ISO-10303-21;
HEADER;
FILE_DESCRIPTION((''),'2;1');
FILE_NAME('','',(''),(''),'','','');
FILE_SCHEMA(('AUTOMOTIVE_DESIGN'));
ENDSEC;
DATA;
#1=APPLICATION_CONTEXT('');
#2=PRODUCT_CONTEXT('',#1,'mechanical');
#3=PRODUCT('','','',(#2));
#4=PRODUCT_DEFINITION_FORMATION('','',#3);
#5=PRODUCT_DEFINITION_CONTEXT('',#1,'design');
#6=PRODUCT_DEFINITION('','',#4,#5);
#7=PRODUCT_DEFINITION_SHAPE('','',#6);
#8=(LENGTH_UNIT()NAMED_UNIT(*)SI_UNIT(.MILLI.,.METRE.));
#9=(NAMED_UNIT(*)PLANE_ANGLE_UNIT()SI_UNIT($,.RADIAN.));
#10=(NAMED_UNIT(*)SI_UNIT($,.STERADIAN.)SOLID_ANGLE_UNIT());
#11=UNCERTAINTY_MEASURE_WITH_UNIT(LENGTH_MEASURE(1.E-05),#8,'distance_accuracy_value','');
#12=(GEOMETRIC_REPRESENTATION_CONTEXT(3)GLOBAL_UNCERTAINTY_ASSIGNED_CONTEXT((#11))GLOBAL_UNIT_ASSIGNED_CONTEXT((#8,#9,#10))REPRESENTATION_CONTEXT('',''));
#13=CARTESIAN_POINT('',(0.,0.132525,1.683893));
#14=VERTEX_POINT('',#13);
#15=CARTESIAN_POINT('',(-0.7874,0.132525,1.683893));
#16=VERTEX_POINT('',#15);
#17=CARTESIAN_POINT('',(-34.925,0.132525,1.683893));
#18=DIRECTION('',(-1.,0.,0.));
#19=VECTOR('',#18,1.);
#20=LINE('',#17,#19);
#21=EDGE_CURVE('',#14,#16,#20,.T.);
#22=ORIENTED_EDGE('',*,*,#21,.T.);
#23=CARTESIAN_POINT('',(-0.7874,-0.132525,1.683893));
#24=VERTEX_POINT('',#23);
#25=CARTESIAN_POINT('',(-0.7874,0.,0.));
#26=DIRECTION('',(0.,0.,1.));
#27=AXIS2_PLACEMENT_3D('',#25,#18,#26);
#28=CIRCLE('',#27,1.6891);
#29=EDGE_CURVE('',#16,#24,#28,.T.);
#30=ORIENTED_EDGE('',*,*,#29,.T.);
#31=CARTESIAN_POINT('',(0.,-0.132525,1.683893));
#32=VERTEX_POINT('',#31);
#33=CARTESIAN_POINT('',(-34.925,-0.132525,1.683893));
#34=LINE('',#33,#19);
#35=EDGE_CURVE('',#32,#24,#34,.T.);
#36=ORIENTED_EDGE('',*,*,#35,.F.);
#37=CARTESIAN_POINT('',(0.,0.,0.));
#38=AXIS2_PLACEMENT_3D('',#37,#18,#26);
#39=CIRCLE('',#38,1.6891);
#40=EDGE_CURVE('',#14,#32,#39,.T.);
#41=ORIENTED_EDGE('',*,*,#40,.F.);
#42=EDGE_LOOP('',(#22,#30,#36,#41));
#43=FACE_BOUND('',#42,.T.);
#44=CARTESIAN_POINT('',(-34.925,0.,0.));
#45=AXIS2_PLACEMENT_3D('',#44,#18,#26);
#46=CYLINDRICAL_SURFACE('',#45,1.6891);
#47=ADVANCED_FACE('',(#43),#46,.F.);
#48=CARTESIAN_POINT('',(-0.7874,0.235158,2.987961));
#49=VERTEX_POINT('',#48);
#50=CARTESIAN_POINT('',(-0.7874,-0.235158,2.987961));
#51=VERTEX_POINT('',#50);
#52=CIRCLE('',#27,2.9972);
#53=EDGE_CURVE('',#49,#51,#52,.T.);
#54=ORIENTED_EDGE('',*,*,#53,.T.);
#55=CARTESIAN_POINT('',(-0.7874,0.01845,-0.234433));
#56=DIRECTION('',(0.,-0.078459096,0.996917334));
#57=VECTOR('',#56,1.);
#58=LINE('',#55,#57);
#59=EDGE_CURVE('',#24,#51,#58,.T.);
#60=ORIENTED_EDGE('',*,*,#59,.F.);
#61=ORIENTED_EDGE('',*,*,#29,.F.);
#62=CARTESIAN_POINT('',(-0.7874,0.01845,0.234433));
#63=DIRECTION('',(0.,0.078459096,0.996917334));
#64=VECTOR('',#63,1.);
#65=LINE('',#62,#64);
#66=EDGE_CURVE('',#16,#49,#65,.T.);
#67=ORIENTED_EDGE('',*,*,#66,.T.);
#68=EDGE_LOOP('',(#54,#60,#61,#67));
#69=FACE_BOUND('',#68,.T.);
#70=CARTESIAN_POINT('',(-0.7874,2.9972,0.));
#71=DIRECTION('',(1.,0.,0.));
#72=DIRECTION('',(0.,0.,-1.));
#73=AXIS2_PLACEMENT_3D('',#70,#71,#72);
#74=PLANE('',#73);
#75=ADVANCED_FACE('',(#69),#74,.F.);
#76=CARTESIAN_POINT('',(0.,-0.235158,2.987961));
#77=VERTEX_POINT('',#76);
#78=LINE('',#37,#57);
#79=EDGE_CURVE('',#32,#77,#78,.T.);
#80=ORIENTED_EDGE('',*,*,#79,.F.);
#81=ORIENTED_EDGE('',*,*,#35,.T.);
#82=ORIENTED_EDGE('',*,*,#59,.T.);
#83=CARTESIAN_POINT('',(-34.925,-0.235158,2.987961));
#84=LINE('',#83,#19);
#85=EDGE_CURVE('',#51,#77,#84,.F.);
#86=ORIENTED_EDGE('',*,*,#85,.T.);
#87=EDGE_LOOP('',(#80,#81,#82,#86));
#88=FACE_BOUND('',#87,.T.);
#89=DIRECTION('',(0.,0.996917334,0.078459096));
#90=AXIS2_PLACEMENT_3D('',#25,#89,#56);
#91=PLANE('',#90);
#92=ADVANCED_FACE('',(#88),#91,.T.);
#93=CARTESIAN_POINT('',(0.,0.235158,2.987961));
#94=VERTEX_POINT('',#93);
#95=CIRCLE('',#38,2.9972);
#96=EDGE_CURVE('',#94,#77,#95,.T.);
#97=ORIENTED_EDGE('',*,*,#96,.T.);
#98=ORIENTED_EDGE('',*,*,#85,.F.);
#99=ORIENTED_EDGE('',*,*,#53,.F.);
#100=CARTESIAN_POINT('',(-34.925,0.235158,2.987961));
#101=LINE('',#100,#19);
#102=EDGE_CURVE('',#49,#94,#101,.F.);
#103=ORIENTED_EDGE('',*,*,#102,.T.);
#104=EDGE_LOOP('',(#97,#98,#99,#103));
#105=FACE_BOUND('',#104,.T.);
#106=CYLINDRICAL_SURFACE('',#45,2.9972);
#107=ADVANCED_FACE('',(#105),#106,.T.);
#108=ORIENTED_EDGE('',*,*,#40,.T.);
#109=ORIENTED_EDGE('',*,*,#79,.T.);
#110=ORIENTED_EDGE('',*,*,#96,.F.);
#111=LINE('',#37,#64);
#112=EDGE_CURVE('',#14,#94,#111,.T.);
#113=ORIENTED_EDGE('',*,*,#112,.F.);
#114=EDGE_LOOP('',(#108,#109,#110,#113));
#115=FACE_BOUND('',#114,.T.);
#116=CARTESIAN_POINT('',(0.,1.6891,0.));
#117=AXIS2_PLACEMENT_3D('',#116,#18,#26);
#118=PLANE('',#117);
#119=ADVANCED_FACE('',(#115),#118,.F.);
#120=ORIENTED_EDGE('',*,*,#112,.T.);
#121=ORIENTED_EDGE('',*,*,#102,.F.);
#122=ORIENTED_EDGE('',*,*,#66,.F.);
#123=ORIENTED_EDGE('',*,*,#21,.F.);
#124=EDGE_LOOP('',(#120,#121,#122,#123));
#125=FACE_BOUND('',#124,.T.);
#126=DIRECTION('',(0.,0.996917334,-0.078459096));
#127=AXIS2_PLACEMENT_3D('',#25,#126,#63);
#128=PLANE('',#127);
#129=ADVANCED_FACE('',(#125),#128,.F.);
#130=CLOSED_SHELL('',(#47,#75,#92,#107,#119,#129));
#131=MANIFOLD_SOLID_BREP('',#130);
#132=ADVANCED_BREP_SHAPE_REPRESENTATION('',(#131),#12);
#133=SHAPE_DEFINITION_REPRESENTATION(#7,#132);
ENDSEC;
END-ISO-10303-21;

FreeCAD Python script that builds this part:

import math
import FreeCAD as App
import Part
import Sketcher

V = App.Vector
Q = App.Units.Quantity

doc = App.newDocument("Part")
params = doc.addObject("Spreadsheet::Sheet", "Params")
for row, (alias, value) in enumerate([
    ("sketch1_width", "0.031 in"),
    ("revolution_angle", "360 deg"),
], start=1):
    params.set(f"A{row}", alias)
    params.set(f"B{row}", "=" + value)
    params.setAlias(f"B{row}", alias)

body = doc.addObject("PartDesign::Body", "Body")

sketch1 = body.newObject("Sketcher::SketchObject", "Sketch")
sketch1.AttachmentSupport = (doc.getObject("XY_Plane"), [""])
sketch1.MapMode = "FlatFace"
sketch1.addGeometry(Part.LineSegment(V(-0.8, 3, 0), V(-0.8, 1.7, 0)), False)
sketch1.addGeometry(Part.LineSegment(V(-0.8, 1.7, 0), V(0, 1.7, 0)), False)
sketch1.addGeometry(Part.LineSegment(V(0, 1.7, 0), V(0, 3, 0)), False)
sketch1.addGeometry(Part.LineSegment(V(0, 3, 0), V(-0.8, 3, 0)), False)
sketch1.addConstraint(Sketcher.Constraint("Coincident", 0, 2, 1, 1))
sketch1.addConstraint(Sketcher.Constraint("Coincident", 1, 2, 2, 1))
sketch1.addConstraint(Sketcher.Constraint("Coincident", 2, 2, 3, 1))
sketch1.addConstraint(Sketcher.Constraint("Coincident", 3, 2, 0, 1))
sketch1.addConstraint(Sketcher.Constraint("Vertical", 0))
sketch1.addConstraint(Sketcher.Constraint("Horizontal", 1))
sketch1.addConstraint(Sketcher.Constraint("Vertical", 2))
sketch1.addConstraint(Sketcher.Constraint("Horizontal", 3))
sketch1.addConstraint(Sketcher.Constraint("PointOnObject", 1, 2, -2))
sketch1.addConstraint(Sketcher.Constraint("DistanceX", 1, 1, 1, 2, Q("0.031 in")))
sketch1.addConstraint(Sketcher.Constraint("DistanceY", 0, 2, 0, 1, Q("0.0515 in")))
sketch1.addConstraint(Sketcher.Constraint("DistanceY", -1, 1, 2, 2, Q("0.118 in")))
sketch1.setExpression("Constraints[9]", "Params.sketch1_width")
revolution = body.newObject("PartDesign::Revolution", "Revolution")
revolution.Profile = sketch1
revolution.ReferenceAxis = (sketch1, ["H_Axis"])
revolution.setExpression("Angle", "Params.revolution_angle")

sketch2 = body.newObject("Sketcher::SketchObject", "Sketch001")
sketch2.AttachmentSupport = (doc.getObject("YZ_Plane"), [""])
sketch2.MapMode = "FlatFace"
sketch2.addGeometry(Part.LineSegment(V(0, 0, 0), V(-0.24, 3.05, 0)), False)
sketch2.addGeometry(Part.ArcOfCircle(Part.Circle(V(0, 0, 0), V(0, 0, 1), 3.06), math.radians(85.5), math.radians(94.5)), False)
sketch2.addGeometry(Part.LineSegment(V(0.24, 3.05, 0), V(0, 0, 0)), False)
sketch2.addConstraint(Sketcher.Constraint("Coincident", 0, 2, 1, 2))
sketch2.addConstraint(Sketcher.Constraint("Coincident", 1, 1, 2, 1))
sketch2.addConstraint(Sketcher.Constraint("Coincident", 2, 2, 0, 1))
sketch2.addConstraint(Sketcher.Constraint("Coincident", 1, 3, -1, 1))
sketch2.addConstraint(Sketcher.Constraint("Coincident", 2, 2, -1, 1))
sketch2.addConstraint(Sketcher.Constraint("Horizontal", 0, 2, 1, 1))
sketch2.addConstraint(Sketcher.Constraint("Angle", 0, Q("94.5 deg")))
sketch2.addConstraint(Sketcher.Constraint("Radius", 1, Q("3.057144 mm")))
pocket1 = body.newObject("PartDesign::Pocket", "Pocket")
pocket1.Profile = sketch2
pocket1.Type = "ThroughAll"

doc.recompute()
